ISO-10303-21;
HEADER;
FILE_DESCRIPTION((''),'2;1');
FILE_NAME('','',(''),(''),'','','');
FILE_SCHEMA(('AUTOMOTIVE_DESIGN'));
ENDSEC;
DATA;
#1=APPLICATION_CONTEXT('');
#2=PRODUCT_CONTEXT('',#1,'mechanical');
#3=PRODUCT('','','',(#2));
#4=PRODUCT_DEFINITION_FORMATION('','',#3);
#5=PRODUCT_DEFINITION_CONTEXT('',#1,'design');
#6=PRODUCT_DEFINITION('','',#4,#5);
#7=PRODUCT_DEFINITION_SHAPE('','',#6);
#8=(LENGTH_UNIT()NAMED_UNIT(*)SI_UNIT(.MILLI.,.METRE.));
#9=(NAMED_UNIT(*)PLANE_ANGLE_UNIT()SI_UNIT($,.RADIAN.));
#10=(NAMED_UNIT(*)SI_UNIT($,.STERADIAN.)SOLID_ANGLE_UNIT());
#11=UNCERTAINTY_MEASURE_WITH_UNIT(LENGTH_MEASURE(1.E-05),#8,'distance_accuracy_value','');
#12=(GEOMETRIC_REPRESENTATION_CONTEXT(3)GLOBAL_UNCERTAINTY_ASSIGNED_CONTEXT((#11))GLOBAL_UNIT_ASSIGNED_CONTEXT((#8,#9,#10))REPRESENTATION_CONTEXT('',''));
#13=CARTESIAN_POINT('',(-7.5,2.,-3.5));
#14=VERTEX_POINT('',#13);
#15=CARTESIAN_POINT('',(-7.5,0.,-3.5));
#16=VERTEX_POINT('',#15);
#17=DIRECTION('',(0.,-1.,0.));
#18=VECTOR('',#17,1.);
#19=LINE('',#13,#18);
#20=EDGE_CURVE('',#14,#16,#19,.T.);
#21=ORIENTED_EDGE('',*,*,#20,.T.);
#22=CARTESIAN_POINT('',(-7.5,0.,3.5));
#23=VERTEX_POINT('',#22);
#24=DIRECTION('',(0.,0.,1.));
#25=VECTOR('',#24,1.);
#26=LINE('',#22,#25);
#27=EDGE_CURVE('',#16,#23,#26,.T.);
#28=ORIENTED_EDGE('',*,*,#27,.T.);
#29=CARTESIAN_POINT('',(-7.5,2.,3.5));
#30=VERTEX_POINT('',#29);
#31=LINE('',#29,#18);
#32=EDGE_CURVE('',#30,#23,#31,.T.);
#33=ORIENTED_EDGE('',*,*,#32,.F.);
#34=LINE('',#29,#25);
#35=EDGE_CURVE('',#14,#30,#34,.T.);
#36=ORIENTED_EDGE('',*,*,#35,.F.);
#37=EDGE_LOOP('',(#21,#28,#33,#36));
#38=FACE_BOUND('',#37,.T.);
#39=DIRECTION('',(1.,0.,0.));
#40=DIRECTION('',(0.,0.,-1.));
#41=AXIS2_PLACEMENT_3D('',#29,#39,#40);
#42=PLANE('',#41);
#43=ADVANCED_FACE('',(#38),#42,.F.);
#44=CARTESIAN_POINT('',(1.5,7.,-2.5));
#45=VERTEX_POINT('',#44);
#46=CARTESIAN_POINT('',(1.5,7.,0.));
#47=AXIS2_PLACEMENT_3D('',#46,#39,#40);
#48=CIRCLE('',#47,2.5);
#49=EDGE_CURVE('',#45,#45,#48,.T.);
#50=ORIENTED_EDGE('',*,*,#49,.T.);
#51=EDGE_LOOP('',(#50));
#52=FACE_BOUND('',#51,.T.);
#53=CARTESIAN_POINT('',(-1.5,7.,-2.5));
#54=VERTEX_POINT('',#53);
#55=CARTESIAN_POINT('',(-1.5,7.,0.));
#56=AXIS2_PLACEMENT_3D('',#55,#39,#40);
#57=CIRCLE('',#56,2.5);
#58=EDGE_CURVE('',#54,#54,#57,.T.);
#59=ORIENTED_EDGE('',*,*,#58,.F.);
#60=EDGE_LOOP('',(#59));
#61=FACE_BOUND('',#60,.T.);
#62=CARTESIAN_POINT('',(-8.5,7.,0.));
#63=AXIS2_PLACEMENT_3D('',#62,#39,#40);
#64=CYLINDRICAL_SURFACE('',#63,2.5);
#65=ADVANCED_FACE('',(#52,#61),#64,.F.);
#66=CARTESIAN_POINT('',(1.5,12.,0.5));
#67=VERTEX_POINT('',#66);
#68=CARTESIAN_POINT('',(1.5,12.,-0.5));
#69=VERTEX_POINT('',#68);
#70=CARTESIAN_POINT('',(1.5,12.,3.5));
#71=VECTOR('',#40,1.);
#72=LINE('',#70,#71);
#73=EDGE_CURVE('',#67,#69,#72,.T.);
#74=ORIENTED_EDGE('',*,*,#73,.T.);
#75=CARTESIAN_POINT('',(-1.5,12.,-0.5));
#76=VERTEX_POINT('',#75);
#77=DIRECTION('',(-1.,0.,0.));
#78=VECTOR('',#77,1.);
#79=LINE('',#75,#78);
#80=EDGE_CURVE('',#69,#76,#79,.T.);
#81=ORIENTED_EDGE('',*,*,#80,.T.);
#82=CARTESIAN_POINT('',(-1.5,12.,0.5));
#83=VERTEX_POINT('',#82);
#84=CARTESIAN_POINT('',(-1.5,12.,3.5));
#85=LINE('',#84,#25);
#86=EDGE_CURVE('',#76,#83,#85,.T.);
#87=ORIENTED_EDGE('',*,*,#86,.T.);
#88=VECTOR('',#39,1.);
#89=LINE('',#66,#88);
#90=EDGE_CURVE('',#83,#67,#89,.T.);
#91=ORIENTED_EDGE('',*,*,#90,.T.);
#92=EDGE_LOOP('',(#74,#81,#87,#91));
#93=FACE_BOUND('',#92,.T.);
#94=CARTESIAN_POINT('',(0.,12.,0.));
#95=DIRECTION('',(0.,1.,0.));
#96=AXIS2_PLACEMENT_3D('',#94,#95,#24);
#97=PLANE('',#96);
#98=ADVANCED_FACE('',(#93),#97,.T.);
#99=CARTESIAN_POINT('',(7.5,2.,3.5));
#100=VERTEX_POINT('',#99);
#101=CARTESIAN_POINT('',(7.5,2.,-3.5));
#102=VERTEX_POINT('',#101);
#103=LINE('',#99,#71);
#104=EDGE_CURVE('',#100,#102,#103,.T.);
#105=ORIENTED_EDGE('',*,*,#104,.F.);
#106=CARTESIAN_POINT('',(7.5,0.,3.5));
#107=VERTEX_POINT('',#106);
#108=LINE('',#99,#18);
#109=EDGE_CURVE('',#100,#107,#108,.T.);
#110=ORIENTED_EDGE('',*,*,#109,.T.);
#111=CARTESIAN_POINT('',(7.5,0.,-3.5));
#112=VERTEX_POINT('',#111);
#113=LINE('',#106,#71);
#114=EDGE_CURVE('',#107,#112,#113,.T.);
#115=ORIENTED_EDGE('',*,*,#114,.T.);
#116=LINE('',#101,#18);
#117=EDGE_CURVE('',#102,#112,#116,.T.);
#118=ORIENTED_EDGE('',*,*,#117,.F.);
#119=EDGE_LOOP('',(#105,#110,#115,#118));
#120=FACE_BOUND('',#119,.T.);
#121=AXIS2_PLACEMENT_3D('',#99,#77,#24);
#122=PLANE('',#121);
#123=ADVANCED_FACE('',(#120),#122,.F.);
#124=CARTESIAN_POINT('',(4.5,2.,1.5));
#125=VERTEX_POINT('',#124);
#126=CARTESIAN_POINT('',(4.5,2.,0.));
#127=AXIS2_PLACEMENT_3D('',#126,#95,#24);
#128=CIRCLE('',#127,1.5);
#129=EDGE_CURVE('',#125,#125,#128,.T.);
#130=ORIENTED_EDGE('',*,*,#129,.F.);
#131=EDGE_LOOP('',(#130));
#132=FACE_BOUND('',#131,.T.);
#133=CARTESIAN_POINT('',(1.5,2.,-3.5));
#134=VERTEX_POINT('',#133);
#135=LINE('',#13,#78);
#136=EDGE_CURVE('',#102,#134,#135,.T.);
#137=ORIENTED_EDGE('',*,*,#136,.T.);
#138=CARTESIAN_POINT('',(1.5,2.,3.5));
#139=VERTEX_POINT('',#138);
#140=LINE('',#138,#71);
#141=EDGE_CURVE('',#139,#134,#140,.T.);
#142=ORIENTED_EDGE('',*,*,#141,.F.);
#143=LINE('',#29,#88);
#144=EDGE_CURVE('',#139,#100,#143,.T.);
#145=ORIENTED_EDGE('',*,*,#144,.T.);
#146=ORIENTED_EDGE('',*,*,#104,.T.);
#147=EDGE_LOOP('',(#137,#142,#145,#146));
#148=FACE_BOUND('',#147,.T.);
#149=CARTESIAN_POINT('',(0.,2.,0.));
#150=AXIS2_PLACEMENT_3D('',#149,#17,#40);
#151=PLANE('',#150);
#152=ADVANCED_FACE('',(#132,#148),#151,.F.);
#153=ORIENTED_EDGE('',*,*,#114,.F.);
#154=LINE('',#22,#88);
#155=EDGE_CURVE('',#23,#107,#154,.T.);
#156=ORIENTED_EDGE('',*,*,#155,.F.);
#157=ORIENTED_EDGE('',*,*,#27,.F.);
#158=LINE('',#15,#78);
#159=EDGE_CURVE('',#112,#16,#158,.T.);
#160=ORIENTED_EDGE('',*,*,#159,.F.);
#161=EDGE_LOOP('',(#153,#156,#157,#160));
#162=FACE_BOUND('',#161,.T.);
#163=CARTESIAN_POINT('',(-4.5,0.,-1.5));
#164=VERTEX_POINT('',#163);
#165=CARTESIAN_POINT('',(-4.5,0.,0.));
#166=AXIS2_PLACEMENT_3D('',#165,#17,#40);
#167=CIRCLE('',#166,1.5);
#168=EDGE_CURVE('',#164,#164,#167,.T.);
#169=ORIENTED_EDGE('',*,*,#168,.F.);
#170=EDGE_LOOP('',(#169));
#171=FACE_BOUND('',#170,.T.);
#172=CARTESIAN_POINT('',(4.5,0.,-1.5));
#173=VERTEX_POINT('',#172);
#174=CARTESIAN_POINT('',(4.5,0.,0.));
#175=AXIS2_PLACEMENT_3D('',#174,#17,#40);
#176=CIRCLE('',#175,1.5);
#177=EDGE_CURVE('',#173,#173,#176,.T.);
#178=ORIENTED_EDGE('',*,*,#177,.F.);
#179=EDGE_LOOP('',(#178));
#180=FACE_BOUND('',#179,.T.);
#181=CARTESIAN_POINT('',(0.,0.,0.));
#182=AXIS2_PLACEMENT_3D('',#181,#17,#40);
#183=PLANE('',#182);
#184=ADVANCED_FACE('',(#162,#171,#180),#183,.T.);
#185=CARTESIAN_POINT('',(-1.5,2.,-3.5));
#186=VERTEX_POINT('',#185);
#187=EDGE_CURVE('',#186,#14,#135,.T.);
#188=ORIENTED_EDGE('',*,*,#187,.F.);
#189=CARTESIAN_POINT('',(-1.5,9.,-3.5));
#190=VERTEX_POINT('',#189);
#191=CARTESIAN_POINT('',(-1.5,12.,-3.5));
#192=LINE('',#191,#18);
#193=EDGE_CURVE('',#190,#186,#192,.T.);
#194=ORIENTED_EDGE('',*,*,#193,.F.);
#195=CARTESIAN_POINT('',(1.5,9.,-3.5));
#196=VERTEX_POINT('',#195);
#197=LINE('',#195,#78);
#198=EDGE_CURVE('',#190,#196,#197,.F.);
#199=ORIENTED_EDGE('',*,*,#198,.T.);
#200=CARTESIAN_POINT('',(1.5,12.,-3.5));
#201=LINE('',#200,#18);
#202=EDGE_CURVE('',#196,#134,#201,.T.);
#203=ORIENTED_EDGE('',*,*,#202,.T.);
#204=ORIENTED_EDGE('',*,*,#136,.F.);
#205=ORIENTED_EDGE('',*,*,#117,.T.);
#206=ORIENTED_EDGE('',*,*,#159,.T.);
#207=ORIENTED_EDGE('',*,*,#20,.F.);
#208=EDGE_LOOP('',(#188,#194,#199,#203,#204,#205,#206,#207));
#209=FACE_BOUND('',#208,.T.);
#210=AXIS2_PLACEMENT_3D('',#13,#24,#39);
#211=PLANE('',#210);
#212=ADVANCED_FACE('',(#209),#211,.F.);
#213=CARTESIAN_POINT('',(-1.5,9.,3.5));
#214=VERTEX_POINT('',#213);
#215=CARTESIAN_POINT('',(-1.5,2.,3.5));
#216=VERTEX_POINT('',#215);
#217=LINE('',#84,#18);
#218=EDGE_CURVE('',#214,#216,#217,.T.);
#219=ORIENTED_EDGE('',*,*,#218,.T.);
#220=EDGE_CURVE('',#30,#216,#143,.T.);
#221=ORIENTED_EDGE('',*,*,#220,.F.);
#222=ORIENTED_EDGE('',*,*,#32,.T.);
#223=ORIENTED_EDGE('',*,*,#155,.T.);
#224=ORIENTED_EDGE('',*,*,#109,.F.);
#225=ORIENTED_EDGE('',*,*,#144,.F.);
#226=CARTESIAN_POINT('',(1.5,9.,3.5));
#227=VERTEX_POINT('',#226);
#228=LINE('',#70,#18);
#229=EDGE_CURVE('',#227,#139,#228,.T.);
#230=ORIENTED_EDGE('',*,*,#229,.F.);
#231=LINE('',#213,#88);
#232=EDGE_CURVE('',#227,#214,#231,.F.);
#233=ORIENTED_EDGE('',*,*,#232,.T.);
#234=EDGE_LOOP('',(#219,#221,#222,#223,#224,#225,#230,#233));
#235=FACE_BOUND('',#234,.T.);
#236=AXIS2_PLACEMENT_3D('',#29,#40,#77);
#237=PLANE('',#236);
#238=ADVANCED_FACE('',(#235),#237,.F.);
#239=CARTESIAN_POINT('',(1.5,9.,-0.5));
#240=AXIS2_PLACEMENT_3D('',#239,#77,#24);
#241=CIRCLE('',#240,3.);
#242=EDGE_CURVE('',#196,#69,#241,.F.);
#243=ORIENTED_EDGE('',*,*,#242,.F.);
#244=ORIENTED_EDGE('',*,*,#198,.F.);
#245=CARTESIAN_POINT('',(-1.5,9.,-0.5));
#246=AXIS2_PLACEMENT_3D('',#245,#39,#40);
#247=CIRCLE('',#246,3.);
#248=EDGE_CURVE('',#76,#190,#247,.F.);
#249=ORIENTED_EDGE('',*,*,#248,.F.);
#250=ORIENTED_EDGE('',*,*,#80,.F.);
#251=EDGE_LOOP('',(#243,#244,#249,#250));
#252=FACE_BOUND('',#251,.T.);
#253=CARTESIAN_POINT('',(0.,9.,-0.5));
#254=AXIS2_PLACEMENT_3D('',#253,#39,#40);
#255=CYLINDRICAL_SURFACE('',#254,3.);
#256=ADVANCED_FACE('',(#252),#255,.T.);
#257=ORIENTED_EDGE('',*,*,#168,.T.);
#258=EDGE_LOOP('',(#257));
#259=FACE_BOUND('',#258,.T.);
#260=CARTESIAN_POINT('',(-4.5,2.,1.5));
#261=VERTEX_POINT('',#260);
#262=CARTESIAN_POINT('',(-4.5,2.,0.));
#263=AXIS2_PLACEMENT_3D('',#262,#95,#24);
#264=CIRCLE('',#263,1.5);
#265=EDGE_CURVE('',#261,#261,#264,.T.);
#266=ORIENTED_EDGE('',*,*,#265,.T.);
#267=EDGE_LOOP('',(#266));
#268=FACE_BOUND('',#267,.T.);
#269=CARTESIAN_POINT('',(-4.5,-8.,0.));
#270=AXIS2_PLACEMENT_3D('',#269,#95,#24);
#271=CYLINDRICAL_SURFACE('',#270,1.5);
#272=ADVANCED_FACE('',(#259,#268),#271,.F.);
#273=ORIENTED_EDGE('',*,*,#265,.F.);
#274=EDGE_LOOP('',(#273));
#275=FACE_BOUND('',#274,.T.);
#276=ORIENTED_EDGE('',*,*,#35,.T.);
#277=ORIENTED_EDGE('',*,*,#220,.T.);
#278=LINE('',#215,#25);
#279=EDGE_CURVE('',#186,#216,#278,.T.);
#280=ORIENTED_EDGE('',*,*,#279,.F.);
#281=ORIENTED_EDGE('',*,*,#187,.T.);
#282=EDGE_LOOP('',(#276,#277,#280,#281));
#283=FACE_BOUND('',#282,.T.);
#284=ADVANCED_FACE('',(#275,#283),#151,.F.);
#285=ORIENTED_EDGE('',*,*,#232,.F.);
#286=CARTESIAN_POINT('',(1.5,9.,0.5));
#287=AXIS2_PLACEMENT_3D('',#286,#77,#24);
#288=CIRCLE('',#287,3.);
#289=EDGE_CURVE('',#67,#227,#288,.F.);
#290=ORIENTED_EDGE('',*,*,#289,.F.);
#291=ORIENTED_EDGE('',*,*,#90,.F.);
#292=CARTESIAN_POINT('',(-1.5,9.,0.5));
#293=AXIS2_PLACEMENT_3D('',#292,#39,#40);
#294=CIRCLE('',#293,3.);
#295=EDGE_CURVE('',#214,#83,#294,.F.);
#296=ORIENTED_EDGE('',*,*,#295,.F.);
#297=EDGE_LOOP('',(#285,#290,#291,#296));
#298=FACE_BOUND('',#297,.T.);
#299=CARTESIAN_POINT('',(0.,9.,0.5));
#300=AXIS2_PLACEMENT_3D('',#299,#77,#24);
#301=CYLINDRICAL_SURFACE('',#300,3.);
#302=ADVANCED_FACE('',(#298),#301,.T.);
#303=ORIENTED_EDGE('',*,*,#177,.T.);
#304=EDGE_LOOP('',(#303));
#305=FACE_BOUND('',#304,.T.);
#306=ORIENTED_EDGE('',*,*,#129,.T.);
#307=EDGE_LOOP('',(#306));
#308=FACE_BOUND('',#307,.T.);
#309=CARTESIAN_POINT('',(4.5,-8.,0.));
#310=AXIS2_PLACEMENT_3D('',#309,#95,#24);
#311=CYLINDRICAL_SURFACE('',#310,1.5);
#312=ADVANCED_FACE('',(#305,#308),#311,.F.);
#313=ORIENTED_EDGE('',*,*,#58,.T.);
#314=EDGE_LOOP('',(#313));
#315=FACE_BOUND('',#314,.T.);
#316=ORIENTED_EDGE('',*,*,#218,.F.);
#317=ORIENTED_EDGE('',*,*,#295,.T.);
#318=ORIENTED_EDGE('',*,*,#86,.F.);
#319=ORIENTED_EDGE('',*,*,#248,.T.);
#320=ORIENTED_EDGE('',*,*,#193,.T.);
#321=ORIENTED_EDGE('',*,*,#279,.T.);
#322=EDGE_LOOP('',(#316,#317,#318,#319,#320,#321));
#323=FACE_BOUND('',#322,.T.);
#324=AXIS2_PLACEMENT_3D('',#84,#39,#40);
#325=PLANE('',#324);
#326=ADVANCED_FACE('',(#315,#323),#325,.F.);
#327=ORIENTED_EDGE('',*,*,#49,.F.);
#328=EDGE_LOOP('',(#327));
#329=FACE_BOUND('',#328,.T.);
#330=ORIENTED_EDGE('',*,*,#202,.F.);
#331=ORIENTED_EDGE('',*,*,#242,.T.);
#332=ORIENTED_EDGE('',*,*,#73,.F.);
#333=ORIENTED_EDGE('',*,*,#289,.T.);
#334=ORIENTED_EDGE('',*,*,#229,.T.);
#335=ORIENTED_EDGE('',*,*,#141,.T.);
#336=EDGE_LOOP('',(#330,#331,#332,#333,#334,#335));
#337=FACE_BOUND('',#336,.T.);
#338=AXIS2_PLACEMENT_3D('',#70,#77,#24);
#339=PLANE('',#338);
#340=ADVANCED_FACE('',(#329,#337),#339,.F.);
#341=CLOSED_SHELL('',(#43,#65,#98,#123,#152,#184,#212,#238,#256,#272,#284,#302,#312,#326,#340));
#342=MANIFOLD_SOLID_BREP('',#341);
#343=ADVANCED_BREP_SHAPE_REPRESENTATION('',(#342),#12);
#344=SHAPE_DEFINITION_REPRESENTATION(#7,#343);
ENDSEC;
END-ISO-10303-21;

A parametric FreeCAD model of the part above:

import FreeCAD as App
import Part
import Sketcher

V = App.Vector


def edges_at(feature, points):
    """Names of the edges that pass closest to the given points."""
    edges = feature.Shape.Edges
    near = lambda p: min(range(len(edges)), key=lambda i: edges[i].distToShape(Part.Vertex(*p))[0])
    return sorted({f"Edge{near(p) + 1}" for p in points})


def add_polygon(sketch, points):
    """Adds a closed chain of lines whose ends are joined by coincident constraints."""
    first, n = sketch.GeometryCount, len(points)
    for a, b in zip(points, points[1:] + points[:1]):
        sketch.addGeometry(Part.LineSegment(App.Vector(*a, 0), App.Vector(*b, 0)), False)
    for i in range(n):
        sketch.addConstraint(Sketcher.Constraint("Coincident", first + i, 2, first + (i + 1) % n, 1))

doc = App.newDocument("Part")
body = doc.addObject("PartDesign::Body", "Body")

sketch1 = body.newObject("Sketcher::SketchObject", "Sketch")
sketch1.AttachmentSupport = (doc.getObject("XZ_Plane"), [""])
sketch1.MapMode = "FlatFace"
add_polygon(sketch1, [(-7.5, -3.5), (-7.5, 3.5), (7.5, 3.5), (7.5, -3.5)])
sketch1.addConstraint([
    Sketcher.Constraint("Vertical", 0),
    Sketcher.Constraint("Horizontal", 1),
    Sketcher.Constraint("Vertical", 2),
    Sketcher.Constraint("Horizontal", 3),
    Sketcher.Constraint("Symmetric", 0, 2, 2, 2, -1, 1),
    Sketcher.Constraint("DistanceX", 1, 1, 1, 2, 15.0),
    Sketcher.Constraint("DistanceY", 0, 1, 0, 2, 7.0),
])
pad1 = body.newObject("PartDesign::Pad", "Pad")
pad1.Profile = sketch1
pad1.Length = 2
pad1.Reversed = True

sketch2 = body.newObject("Sketcher::SketchObject", "Sketch001")
sketch2.AttachmentSupport = (doc.getObject("XZ_Plane"), [""])
sketch2.MapMode = "FlatFace"
sketch2.AttachmentOffset = App.Placement(V(0, 0, -2), App.Rotation())
add_polygon(sketch2, [(-1.5, -3.5), (-1.5, 3.5), (1.5, 3.5), (1.5, -3.5)])
sketch2.addConstraint([
    Sketcher.Constraint("Vertical", 0),
    Sketcher.Constraint("Horizontal", 1),
    Sketcher.Constraint("Vertical", 2),
    Sketcher.Constraint("Horizontal", 3),
    Sketcher.Constraint("Symmetric", 0, 2, 2, 2, -1, 1),
    Sketcher.Constraint("DistanceX", 1, 1, 1, 2, 3.0),
    Sketcher.Constraint("DistanceY", 0, 1, 0, 2, 7.0),
])
pad2 = body.newObject("PartDesign::Pad", "Pad001")
pad2.Profile = sketch2
pad2.Length = 10
pad2.Reversed = True

sketch3 = body.newObject("Sketcher::SketchObject", "Sketch002")
sketch3.AttachmentSupport = (doc.getObject("YZ_Plane"), [""])
sketch3.MapMode = "FlatFace"
sketch3.AttachmentOffset = App.Placement(V(0, 0, 1.5), App.Rotation())
sketch3.addGeometry(Part.Circle(V(7, 0, 0), V(0, 0, 1), 2.5), False)
sketch3.addConstraint([
    Sketcher.Constraint("PointOnObject", 0, 3, -1),
    Sketcher.Constraint("Diameter", 0, 5.0),
    Sketcher.Constraint("DistanceX", -1, 1, 0, 3, 7.0),
])
pocket1 = body.newObject("PartDesign::Pocket", "Pocket")
pocket1.Profile = sketch3
pocket1.Length = 10
doc.recompute()

fillet = body.newObject("PartDesign::Fillet", "Fillet")
fillet.Base = (pocket1, edges_at(pocket1, [(0, 12, 3.5), (0, 12, -3.5)]))
fillet.Radius = 3

sketch4 = body.newObject("Sketcher::SketchObject", "Sketch003")
sketch4.AttachmentSupport = (doc.getObject("XZ_Plane"), [""])
sketch4.MapMode = "FlatFace"
sketch4.AttachmentOffset = App.Placement(V(0, 0, -2), App.Rotation())
sketch4.addGeometry([
    Part.Circle(V(4.5, 0, 0), V(0, 0, 1), 1.5),
    Part.Circle(V(-4.5, 0, 0), V(0, 0, 1), 1.5),
], False)
sketch4.addConstraint([
    Sketcher.Constraint("Equal", 0, 1),
    Sketcher.Constraint("Symmetric", 0, 3, 1, 3, -1, 1),
    Sketcher.Constraint("PointOnObject", 0, 3, -1),
    Sketcher.Constraint("Diameter", 0, 3.0),
    Sketcher.Constraint("DistanceX", 1, 3, 0, 3, 9.0),
])
pocket2 = body.newObject("PartDesign::Pocket", "Pocket001")
pocket2.Profile = sketch4
pocket2.Length = 10
pocket2.Reversed = True

doc.recompute()
